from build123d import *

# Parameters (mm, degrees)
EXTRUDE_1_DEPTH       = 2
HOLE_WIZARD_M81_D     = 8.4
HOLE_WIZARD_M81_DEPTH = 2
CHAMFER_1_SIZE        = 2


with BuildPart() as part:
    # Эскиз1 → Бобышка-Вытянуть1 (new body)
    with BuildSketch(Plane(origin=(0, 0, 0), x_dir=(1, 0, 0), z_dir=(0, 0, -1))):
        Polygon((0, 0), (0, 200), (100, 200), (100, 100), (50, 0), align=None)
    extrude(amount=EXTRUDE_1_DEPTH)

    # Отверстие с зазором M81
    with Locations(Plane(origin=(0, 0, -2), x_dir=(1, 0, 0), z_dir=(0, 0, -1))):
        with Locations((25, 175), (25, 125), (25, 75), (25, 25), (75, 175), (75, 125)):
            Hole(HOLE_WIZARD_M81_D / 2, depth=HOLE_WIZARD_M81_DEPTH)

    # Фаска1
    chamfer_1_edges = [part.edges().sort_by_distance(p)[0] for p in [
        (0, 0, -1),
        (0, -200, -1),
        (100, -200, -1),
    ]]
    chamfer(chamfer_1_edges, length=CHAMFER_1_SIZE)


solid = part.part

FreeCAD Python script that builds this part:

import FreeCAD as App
import Part
import Sketcher
Q = App.Units.Quantity


def edges_at(feature, points):
    """Names of the edges that pass closest to the given points."""
    edges = feature.Shape.Edges
    near = lambda p: min(range(len(edges)), key=lambda i: edges[i].distToShape(Part.Vertex(*p))[0])
    return sorted({f"Edge{near(p) + 1}" for p in points})

doc = App.newDocument("Part")
body = doc.addObject("PartDesign::Body", "Body")

sketch1 = body.newObject("Sketcher::SketchObject", "Sketch")
sketch1.AttachmentSupport = (doc.getObject("XY_Plane"), [""])
sketch1.MapMode = "FlatFace"
sketch1.addGeometry([
    Part.LineSegment(App.Vector(0, -200, 0), App.Vector(0, 0, 0)),
    Part.LineSegment(App.Vector(0, 0, 0), App.Vector(50, 0, 0)),
    Part.LineSegment(App.Vector(50, 0, 0), App.Vector(100, -100, 0)),
    Part.LineSegment(App.Vector(100, -100, 0), App.Vector(100, -200, 0)),
    Part.LineSegment(App.Vector(100, -200, 0), App.Vector(0, -200, 0)),
], False)
sketch1.addConstraint([
    Sketcher.Constraint("Coincident", 0, 2, 1, 1),
    Sketcher.Constraint("Coincident", 1, 2, 2, 1),
    Sketcher.Constraint("Coincident", 2, 2, 3, 1),
    Sketcher.Constraint("Coincident", 3, 2, 4, 1),
    Sketcher.Constraint("Coincident", 4, 2, 0, 1),
    Sketcher.Constraint("Vertical", 0),
    Sketcher.Constraint("Horizontal", 1),
    Sketcher.Constraint("Vertical", 3),
    Sketcher.Constraint("Horizontal", 4),
    Sketcher.Constraint("Coincident", 0, 2, -1, 1),
    Sketcher.Constraint("Equal", 4, 3),
    Sketcher.Constraint("DistanceX", 1, 1, 1, 2, Q("50 mm")),
    Sketcher.Constraint("DistanceX", 4, 2, 4, 1, Q("100 mm")),
    Sketcher.Constraint("DistanceY", 0, 1, 0, 2, Q("200 mm")),
])
pad1 = body.newObject("PartDesign::Pad", "Pad")
pad1.Profile = sketch1
pad1.Length = 2
pad1.Reversed = True

sketch2 = body.newObject("Sketcher::SketchObject", "Sketch001")
sketch2.AttachmentSupport = (doc.getObject("XY_Plane"), [""])
sketch2.MapMode = "FlatFace"
sketch2.AttachmentOffset = App.Placement(App.Vector(0, 0, -2), App.Rotation())
sketch2.addGeometry([
    Part.Circle(App.Vector(25, -175, 0), App.Vector(0, 0, 1), 4.2),
    Part.Circle(App.Vector(25, -125, 0), App.Vector(0, 0, 1), 4.2),
    Part.Circle(App.Vector(25, -75, 0), App.Vector(0, 0, 1), 4.2),
    Part.Circle(App.Vector(25, -25, 0), App.Vector(0, 0, 1), 4.2),
    Part.Circle(App.Vector(75, -175, 0), App.Vector(0, 0, 1), 4.2),
    Part.Circle(App.Vector(75, -125, 0), App.Vector(0, 0, 1), 4.2),
], False)
sketch2.addConstraint([
    Sketcher.Constraint("Equal", 0, 1),
    Sketcher.Constraint("Equal", 1, 2),
    Sketcher.Constraint("Equal", 2, 3),
    Sketcher.Constraint("Equal", 3, 4),
    Sketcher.Constraint("Equal", 4, 5),
    Sketcher.Constraint("Horizontal", 0, 3, 4, 3),
    Sketcher.Constraint("Horizontal", 1, 3, 5, 3),
    Sketcher.Constraint("Vertical", 0, 3, 1, 3),
    Sketcher.Constraint("Vertical", 1, 3, 2, 3),
    Sketcher.Constraint("Vertical", 2, 3, 3, 3),
    Sketcher.Constraint("Vertical", 4, 3, 5, 3),
    Sketcher.Constraint("Diameter", 0, Q("8.4 mm")),
    Sketcher.Constraint("DistanceX", -1, 1, 0, 3, Q("25 mm")),
    Sketcher.Constraint("DistanceY", 0, 3, -1, 1, Q("175 mm")),
    Sketcher.Constraint("DistanceY", 1, 3, -1, 1, Q("125 mm")),
    Sketcher.Constraint("DistanceY", 2, 3, -1, 1, Q("75 mm")),
    Sketcher.Constraint("DistanceY", 3, 3, -1, 1, Q("25 mm")),
    Sketcher.Constraint("DistanceX", -1, 1, 4, 3, Q("75 mm")),
])
doc.recompute()
hole = body.newObject("PartDesign::Hole", "Hole")
hole.Profile = sketch2
hole.ThreadType = "None"
hole.Diameter = 8.4
hole.DepthType = "Dimension"
hole.Depth = 2
hole.DrillPoint = "Flat"
hole.Reversed = True
doc.recompute()

chamfer = body.newObject("PartDesign::Chamfer", "Chamfer")
chamfer.Base = (hole, edges_at(hole, [(0, 0, -1), (0, -200, -1), (100, -200, -1)]))
chamfer.Size = 2

doc.recompute()
